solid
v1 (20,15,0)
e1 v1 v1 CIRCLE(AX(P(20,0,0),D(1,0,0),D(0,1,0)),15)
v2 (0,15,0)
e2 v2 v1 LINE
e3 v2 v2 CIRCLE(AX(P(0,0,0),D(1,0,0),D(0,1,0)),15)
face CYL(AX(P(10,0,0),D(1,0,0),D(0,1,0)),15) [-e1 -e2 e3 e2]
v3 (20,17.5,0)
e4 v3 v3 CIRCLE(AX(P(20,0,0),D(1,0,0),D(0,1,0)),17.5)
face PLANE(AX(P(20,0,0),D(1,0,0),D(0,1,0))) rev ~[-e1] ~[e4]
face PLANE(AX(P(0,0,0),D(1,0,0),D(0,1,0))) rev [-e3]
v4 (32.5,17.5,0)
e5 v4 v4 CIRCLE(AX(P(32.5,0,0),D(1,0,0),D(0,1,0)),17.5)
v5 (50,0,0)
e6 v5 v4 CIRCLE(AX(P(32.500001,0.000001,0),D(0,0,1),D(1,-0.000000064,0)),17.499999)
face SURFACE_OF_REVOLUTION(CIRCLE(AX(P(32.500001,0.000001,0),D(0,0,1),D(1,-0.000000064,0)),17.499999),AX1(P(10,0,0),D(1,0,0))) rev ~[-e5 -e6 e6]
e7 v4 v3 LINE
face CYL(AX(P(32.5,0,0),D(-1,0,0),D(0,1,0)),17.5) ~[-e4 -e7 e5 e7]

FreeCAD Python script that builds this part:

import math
import FreeCAD as App
import Part
import Sketcher
from FreeCAD import Vector
Q = App.Units.Quantity

doc = App.newDocument("Part")
body = doc.addObject("PartDesign::Body", "Body")

# Sketch on XY plane
sketch1 = doc.addObject("Sketcher::SketchObject", "Sketch")
body.addObject(sketch1)
sketch1.AttachmentSupport = (doc.XY_Plane, [""])
sketch1.MapMode = "FlatFace"
sketch1.addGeometry([
    Part.LineSegment(Vector(0, 15, 0), Vector(0, 0, 0)),  # 0
    Part.LineSegment(Vector(0, 0, 0), Vector(50, 0, 0)),  # 1
    Part.ArcOfCircle(Part.Circle(Vector(32.500001, 0.000001, 0), Vector(0, 0, 1), 17.499999), math.radians(-0.000004), math.radians(90.000004)),  # 2
    Part.LineSegment(Vector(32.5, 17.5, 0), Vector(20, 17.5, 0)),  # 3
    Part.LineSegment(Vector(20, 17.5, 0), Vector(20, 15, 0)),  # 4
    Part.LineSegment(Vector(20, 15, 0), Vector(0, 15, 0)),  # 5
], False)
sketch1.addConstraint([
    Sketcher.Constraint("Coincident", 0, 2, 1, 1),
    Sketcher.Constraint("Coincident", 1, 2, 2, 1),
    Sketcher.Constraint("Tangent", 2, 2, 3, 1),
    Sketcher.Constraint("Coincident", 3, 2, 4, 1),
    Sketcher.Constraint("Coincident", 4, 2, 5, 1),
    Sketcher.Constraint("Coincident", 5, 2, 0, 1),
    Sketcher.Constraint("Vertical", 0),
    Sketcher.Constraint("Horizontal", 1),
    Sketcher.Constraint("Horizontal", 3),
    Sketcher.Constraint("Vertical", 4),
    Sketcher.Constraint("Horizontal", 5),
    Sketcher.Constraint("Coincident", 0, 2, -1, 1),
    Sketcher.Constraint("PointOnObject", 2, 3, -1),
    Sketcher.Constraint("Radius", 2, Q("17.499999 mm")),
    Sketcher.Constraint("DistanceX", 1, 1, 1, 2, Q("50 mm")),
    Sketcher.Constraint("DistanceX", 5, 2, 5, 1, Q("20 mm")),
    Sketcher.Constraint("DistanceY", 0, 2, 0, 1, Q("15 mm")),
])
revolution = doc.addObject("PartDesign::Revolution", "Revolution")
body.addObject(revolution)
revolution.Profile = sketch1
revolution.ReferenceAxis = (sketch1, ["H_Axis"])
revolution.Angle = 360

doc.recompute()
